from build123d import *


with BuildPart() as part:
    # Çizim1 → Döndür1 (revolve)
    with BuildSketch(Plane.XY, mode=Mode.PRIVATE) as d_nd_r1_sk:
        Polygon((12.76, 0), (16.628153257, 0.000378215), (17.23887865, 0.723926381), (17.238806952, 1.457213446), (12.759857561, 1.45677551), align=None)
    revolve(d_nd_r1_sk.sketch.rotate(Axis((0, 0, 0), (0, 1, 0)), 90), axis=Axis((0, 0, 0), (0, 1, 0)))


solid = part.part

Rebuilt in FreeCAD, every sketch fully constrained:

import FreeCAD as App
import Part
import Sketcher
Q = App.Units.Quantity


def add_polygon(sketch, points):
    """Adds a closed chain of lines whose ends are joined by coincident constraints."""
    first, n = sketch.GeometryCount, len(points)
    for a, b in zip(points, points[1:] + points[:1]):
        sketch.addGeometry(Part.LineSegment(App.Vector(*a, 0), App.Vector(*b, 0)), False)
    for i in range(n):
        sketch.addConstraint(Sketcher.Constraint("Coincident", first + i, 2, first + (i + 1) % n, 1))

doc = App.newDocument("Part")
params = doc.addObject("Spreadsheet::Sheet", "Params")
for row, (alias, value) in enumerate([
    ("revolution_angle", "360 deg"),
], start=1):
    params.set(f"A{row}", alias)
    params.set(f"B{row}", "=" + value)
    params.setAlias(f"B{row}", alias)

body = doc.addObject("PartDesign::Body", "Body")

sketch1 = doc.addObject("Sketcher::SketchObject", "Sketch")
body.addObject(sketch1)
sketch1.AttachmentSupport = (doc.XY_Plane, [""])
sketch1.MapMode = "FlatFace"
add_polygon(sketch1, [(12.8, 0), (16.6, 0), (17.2, 0.7), (17.2, 1.5), (12.8, 1.5)])
sketch1.addConstraint([
    Sketcher.Constraint("PointOnObject", 4, 2, -1),
    Sketcher.Constraint("Perpendicular", 0, 2),
    Sketcher.Constraint("Perpendicular", 2, 3),
    Sketcher.Constraint("Perpendicular", 3, 4),
    Sketcher.Constraint("DistanceX", -1, 1, 4, 2, Q("12.76 mm")),
    Sketcher.Constraint("Distance", 1, Q("0.946841 mm")),
    Sketcher.Constraint("Distance", 3, Q("4.478949 mm")),
    Sketcher.Constraint("DistanceY", -1, 1, 0, 2, Q("0.000378 mm")),
    Sketcher.Constraint("DistanceY", 0, 2, 1, 2, Q("0.723548 mm")),
    Sketcher.Constraint("DistanceY", 1, 2, 3, 2, Q("0.732849 mm")),
])
revolution = doc.addObject("PartDesign::Revolution", "Revolution")
body.addObject(revolution)
revolution.Profile = sketch1
revolution.ReferenceAxis = (sketch1, ["V_Axis"])
revolution.setExpression("Angle", "Params.revolution_angle")

doc.recompute()
